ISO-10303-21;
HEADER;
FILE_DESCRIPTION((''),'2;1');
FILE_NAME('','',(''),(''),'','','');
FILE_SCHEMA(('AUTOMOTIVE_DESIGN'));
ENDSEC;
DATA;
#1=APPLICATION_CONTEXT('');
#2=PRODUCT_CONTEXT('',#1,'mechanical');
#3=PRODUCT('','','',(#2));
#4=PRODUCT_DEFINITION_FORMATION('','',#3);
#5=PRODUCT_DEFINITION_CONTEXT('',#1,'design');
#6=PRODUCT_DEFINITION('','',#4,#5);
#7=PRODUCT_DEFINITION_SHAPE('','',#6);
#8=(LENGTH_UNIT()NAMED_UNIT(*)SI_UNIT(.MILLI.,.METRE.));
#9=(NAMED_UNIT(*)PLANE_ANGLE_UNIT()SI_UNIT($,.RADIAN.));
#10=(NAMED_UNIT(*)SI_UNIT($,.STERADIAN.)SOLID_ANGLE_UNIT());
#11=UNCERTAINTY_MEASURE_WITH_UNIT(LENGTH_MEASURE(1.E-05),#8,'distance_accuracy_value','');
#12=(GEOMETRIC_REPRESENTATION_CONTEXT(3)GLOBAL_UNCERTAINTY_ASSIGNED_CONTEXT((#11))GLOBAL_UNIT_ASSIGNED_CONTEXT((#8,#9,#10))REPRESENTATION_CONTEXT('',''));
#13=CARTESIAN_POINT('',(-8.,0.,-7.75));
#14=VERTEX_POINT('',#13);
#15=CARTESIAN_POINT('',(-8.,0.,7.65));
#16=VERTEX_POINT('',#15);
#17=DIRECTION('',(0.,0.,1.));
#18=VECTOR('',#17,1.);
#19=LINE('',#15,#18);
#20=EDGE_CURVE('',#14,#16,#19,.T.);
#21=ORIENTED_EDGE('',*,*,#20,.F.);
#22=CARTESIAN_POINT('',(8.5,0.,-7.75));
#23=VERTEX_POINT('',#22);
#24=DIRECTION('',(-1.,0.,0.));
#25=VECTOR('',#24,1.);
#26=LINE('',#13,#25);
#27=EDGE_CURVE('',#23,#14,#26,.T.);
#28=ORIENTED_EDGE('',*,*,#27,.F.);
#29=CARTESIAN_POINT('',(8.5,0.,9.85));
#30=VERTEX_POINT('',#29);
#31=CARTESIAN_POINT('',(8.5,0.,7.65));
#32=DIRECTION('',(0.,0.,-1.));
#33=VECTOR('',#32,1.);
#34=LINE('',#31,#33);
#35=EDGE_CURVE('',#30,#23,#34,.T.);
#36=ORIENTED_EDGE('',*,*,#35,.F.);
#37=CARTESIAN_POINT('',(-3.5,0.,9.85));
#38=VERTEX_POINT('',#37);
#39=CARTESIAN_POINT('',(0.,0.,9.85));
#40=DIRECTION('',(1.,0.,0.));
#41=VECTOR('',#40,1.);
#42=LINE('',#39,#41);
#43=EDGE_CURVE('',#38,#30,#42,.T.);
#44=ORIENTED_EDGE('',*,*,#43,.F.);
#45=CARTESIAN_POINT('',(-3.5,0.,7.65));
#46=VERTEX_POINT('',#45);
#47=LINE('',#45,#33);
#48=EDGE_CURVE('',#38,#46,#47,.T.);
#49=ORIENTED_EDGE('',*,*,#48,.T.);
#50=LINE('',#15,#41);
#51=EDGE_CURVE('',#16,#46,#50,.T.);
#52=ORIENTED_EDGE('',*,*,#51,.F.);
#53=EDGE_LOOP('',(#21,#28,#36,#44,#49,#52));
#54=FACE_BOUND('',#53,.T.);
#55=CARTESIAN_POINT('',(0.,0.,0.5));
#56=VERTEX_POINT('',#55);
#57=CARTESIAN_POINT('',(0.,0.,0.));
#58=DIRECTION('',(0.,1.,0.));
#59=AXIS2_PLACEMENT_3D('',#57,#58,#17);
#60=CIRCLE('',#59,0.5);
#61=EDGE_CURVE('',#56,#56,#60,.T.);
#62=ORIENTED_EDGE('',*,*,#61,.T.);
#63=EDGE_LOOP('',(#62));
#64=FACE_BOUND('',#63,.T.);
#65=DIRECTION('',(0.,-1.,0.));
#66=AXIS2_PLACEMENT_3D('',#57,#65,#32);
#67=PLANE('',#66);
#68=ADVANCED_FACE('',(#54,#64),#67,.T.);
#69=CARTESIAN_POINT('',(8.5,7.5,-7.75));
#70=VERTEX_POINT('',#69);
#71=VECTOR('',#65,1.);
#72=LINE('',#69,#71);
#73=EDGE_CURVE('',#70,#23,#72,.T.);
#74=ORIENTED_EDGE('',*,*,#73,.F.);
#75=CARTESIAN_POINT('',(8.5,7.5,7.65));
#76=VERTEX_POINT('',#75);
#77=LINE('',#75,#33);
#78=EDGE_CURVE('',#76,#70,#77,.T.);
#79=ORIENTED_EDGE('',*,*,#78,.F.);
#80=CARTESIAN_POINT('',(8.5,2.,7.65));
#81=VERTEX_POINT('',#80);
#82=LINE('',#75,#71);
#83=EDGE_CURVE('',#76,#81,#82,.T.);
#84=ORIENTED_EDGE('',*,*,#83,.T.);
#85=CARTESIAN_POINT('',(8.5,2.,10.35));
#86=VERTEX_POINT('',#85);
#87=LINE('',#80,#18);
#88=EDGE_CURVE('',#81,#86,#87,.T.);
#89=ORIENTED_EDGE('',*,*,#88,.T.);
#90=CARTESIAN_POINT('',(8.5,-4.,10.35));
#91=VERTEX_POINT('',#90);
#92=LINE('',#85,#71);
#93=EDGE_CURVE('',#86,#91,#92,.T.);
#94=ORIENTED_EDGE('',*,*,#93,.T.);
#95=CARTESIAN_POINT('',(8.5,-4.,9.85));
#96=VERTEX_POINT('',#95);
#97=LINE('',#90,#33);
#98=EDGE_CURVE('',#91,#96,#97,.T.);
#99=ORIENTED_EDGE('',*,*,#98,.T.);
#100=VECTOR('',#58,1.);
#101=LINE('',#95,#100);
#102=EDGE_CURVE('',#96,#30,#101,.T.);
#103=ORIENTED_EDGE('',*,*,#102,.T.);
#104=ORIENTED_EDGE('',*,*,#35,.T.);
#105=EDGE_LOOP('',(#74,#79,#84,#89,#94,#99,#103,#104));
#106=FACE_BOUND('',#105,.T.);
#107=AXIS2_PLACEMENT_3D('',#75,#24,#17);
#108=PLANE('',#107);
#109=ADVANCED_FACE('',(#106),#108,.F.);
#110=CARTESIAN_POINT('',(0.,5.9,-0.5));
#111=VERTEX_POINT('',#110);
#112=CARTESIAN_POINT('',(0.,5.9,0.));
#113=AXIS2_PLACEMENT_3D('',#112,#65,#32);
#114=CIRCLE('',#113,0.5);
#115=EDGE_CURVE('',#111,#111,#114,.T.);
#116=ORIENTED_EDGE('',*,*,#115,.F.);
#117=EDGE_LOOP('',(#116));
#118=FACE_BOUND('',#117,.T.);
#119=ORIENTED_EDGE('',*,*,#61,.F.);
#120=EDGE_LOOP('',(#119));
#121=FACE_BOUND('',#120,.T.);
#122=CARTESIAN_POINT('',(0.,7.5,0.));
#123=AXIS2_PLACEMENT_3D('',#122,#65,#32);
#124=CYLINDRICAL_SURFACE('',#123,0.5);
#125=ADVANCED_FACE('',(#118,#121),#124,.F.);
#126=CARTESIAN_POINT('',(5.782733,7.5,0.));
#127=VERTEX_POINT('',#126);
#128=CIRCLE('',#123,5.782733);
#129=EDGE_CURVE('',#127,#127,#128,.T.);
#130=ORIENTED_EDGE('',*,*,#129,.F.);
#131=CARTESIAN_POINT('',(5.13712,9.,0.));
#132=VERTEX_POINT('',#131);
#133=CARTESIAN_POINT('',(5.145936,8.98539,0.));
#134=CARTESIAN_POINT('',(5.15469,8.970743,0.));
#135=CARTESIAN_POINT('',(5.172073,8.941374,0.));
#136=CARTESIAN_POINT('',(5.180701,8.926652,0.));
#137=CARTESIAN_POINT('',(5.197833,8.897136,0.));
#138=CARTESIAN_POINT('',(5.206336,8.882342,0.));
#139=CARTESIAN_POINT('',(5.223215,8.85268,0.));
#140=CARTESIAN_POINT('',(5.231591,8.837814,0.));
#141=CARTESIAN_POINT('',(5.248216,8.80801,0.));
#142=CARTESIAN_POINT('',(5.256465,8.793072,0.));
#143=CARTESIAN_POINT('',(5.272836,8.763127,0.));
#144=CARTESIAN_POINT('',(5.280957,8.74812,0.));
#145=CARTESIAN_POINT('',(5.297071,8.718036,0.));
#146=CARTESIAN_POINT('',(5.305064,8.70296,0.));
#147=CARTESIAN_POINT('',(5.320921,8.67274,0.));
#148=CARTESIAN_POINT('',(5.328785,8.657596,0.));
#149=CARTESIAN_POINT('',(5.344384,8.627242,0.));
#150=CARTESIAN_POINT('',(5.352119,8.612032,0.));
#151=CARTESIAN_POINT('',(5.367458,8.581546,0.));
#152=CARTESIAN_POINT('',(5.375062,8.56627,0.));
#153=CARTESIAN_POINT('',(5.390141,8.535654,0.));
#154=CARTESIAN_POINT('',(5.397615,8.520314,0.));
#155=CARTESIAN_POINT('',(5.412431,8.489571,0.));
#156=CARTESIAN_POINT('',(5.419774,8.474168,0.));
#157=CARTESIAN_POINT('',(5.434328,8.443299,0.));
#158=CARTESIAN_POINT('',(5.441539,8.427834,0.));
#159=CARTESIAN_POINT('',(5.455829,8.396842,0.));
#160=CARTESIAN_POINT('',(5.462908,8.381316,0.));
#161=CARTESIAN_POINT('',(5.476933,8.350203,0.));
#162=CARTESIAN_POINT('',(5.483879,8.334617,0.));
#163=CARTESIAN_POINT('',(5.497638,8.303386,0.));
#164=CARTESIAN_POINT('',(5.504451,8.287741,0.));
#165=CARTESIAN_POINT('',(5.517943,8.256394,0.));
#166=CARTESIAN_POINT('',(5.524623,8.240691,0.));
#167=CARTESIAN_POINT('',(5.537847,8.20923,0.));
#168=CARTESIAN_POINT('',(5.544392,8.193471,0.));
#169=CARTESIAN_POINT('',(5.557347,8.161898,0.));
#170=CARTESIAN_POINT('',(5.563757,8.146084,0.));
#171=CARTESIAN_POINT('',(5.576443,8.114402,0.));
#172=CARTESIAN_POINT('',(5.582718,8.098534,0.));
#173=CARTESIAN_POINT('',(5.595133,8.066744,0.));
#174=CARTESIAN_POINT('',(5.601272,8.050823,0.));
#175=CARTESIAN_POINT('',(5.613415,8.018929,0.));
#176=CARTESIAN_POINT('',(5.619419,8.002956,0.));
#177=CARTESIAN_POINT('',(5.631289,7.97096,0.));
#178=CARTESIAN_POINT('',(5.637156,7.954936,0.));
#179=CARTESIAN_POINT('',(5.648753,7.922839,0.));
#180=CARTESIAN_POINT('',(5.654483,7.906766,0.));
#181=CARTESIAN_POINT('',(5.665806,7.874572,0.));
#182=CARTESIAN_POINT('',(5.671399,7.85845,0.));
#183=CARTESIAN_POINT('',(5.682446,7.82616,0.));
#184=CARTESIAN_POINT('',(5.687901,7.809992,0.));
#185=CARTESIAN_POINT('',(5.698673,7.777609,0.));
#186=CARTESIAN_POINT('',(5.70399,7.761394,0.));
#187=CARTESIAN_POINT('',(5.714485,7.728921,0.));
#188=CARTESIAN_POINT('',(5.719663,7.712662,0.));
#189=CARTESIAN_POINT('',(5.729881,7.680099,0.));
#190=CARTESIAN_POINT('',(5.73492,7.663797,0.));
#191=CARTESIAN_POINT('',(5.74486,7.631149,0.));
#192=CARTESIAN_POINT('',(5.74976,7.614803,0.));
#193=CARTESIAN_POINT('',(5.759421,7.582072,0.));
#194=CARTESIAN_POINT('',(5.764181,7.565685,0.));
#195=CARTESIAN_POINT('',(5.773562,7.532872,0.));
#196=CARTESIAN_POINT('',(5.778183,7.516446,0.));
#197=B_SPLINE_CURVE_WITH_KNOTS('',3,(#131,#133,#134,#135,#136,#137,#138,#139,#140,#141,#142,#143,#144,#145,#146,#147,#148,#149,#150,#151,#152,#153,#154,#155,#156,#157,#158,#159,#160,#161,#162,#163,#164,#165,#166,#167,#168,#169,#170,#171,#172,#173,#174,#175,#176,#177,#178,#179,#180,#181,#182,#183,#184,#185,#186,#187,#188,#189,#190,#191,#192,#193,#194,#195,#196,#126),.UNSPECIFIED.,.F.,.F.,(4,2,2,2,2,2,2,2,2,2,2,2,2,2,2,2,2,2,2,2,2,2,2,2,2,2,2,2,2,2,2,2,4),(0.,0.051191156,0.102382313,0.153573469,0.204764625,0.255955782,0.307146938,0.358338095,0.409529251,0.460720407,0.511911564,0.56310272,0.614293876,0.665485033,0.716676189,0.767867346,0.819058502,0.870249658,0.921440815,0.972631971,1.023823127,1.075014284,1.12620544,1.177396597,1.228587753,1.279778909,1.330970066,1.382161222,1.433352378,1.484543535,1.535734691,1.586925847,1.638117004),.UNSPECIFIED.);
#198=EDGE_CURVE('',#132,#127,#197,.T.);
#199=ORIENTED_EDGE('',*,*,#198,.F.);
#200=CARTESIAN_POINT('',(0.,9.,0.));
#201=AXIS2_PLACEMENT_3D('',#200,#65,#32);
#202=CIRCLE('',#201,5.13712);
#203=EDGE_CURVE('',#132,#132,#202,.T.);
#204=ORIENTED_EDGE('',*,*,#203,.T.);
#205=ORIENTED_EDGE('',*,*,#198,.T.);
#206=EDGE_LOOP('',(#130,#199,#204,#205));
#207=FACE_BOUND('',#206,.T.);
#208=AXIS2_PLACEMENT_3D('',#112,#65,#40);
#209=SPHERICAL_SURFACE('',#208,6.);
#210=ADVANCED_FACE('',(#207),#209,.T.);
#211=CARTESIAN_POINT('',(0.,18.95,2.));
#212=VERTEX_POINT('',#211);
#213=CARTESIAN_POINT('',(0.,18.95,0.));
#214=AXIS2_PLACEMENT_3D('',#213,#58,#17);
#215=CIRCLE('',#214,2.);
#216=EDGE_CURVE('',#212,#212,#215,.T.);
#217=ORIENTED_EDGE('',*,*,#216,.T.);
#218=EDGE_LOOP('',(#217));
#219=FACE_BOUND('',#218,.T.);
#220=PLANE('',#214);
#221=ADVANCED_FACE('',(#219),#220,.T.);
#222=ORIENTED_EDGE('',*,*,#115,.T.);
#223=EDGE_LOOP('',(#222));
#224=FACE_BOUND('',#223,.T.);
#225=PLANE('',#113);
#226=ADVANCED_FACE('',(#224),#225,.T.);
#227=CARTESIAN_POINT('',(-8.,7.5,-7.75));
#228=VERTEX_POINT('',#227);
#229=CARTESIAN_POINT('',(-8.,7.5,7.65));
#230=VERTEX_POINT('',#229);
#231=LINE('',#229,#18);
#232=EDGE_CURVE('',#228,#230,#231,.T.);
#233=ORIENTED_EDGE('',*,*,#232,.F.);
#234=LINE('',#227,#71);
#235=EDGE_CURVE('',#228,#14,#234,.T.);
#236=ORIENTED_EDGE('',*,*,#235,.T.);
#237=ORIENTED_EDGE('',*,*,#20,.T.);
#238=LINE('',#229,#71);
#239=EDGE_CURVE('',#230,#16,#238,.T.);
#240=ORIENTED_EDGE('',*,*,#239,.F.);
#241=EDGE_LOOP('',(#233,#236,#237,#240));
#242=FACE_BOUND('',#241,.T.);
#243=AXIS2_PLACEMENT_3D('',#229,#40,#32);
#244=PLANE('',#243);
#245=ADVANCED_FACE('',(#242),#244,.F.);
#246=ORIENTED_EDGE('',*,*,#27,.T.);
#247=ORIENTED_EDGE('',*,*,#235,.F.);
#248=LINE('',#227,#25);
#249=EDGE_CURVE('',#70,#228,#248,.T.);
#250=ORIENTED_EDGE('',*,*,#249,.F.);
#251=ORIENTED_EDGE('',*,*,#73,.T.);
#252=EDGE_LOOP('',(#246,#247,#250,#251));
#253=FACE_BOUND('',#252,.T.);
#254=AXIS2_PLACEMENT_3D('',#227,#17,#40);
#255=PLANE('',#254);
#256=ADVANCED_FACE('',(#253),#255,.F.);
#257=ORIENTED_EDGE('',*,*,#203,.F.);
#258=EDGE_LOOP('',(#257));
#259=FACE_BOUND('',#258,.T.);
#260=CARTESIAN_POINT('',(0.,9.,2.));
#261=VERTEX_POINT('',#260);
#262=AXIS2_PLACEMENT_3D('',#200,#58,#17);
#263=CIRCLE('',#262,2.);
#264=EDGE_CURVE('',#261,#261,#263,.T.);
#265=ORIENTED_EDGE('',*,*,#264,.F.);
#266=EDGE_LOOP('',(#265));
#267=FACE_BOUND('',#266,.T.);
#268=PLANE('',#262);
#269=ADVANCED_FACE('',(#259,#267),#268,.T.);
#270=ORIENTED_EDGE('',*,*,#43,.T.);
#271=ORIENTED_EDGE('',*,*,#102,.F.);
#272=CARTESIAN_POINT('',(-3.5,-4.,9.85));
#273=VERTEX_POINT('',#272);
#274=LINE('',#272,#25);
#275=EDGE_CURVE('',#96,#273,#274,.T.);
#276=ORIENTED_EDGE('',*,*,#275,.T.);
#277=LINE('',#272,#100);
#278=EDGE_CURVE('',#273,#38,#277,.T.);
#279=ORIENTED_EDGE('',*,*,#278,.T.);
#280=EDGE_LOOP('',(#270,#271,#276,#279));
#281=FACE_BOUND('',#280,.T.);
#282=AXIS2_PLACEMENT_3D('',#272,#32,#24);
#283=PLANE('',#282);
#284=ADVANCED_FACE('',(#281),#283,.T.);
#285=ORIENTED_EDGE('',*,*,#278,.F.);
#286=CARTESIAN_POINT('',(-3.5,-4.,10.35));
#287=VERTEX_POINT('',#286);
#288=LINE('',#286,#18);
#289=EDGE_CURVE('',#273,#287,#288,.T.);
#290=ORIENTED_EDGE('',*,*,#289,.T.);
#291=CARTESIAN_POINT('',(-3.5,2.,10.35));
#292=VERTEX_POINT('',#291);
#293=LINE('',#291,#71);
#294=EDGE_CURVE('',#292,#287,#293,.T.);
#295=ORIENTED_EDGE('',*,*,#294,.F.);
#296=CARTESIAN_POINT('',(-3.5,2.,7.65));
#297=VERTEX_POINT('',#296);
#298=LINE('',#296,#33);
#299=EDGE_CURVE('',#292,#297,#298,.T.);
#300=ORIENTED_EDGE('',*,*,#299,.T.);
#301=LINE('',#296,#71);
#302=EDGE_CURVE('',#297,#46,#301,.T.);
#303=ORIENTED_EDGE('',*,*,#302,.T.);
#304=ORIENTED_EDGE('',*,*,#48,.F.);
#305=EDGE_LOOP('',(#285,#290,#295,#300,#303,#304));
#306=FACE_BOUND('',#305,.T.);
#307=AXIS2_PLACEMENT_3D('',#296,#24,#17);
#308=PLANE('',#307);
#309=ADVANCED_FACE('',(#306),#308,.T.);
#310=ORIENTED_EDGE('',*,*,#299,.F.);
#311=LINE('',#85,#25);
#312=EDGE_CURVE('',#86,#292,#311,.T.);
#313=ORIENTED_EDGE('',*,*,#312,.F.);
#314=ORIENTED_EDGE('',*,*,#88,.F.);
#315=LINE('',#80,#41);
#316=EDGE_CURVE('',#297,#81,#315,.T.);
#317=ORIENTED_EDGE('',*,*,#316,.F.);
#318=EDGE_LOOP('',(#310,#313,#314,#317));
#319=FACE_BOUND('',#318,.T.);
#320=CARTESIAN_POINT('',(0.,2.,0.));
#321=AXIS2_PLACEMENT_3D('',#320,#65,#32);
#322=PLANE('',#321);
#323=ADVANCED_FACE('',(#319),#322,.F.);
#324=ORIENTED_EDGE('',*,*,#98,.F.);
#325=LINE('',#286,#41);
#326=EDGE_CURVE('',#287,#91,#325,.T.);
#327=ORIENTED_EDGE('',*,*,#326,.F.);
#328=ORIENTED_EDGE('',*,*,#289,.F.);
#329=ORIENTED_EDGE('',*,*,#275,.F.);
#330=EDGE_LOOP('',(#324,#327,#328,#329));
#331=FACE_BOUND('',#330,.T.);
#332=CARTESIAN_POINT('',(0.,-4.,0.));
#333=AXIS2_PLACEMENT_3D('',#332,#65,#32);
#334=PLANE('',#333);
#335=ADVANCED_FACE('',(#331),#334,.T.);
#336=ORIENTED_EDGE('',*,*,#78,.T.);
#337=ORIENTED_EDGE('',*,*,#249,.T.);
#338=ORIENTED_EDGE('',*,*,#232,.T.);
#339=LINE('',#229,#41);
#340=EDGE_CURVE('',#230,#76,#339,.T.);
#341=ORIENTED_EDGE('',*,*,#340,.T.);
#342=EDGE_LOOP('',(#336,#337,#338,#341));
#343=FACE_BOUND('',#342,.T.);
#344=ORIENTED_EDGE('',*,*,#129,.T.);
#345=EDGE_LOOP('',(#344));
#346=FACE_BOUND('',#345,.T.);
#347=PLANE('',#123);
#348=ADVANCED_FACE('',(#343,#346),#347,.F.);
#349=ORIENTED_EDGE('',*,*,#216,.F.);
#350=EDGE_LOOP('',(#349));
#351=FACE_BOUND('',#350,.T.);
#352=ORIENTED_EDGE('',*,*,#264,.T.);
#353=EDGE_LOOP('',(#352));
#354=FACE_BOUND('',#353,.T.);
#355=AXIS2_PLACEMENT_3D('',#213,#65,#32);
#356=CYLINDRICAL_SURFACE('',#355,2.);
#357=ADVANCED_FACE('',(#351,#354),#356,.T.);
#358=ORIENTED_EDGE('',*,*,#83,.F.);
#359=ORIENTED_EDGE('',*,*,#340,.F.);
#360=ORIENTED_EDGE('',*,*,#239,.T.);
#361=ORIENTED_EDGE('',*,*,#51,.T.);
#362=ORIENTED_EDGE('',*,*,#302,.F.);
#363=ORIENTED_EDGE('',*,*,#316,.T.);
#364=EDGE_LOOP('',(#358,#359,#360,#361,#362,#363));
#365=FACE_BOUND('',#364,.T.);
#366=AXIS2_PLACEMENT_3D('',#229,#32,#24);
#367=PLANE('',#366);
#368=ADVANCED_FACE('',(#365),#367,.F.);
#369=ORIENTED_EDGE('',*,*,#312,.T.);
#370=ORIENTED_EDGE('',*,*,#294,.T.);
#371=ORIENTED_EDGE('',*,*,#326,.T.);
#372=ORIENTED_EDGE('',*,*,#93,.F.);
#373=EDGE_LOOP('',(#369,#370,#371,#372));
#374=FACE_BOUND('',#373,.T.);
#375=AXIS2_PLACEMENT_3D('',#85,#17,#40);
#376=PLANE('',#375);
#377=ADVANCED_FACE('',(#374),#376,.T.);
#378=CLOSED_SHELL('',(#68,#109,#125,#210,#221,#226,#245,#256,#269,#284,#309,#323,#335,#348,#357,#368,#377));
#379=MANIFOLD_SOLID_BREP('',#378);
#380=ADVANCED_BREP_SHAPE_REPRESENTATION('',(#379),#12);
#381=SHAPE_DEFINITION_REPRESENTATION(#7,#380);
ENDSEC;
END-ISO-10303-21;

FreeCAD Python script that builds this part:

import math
import FreeCAD as App
import Part
import Sketcher
from FreeCAD import Vector

doc = App.newDocument("Part")
body = doc.addObject("PartDesign::Body", "Body")

# Sketch on XZ plane
sketch1 = body.newObject("Sketcher::SketchObject", "Sketch")
sketch1.AttachmentSupport = (doc.getObject("XZ_Plane"), [""])
sketch1.MapMode = "FlatFace"
sketch1.addGeometry(Part.LineSegment(Vector(-8, -7.75, 0), Vector(-8, 7.65, 0)), False)
sketch1.addGeometry(Part.LineSegment(Vector(-8, 7.65, 0), Vector(8.5, 7.65, 0)), False)
sketch1.addGeometry(Part.LineSegment(Vector(8.5, 7.65, 0), Vector(8.5, -7.75, 0)), False)
sketch1.addGeometry(Part.LineSegment(Vector(8.5, -7.75, 0), Vector(-8, -7.75, 0)), False)
sketch1.addGeometry(Part.Circle(Vector(0, 0, 0), Vector(0, 0, 1), 0.5), False)
sketch1.addConstraint(Sketcher.Constraint("Coincident", 0, 2, 1, 1))
sketch1.addConstraint(Sketcher.Constraint("Coincident", 1, 2, 2, 1))
sketch1.addConstraint(Sketcher.Constraint("Coincident", 2, 2, 3, 1))
sketch1.addConstraint(Sketcher.Constraint("Coincident", 3, 2, 0, 1))
sketch1.addConstraint(Sketcher.Constraint("Vertical", 0))
sketch1.addConstraint(Sketcher.Constraint("Horizontal", 1))
sketch1.addConstraint(Sketcher.Constraint("Vertical", 2))
sketch1.addConstraint(Sketcher.Constraint("Horizontal", 3))
sketch1.addConstraint(Sketcher.Constraint("Coincident", 4, 3, -1, 1))
sketch1.addConstraint(Sketcher.Constraint("Diameter", 4, 1.0))
sketch1.addConstraint(Sketcher.Constraint("DistanceX", 1, 1, 1, 2, 16.5))
sketch1.addConstraint(Sketcher.Constraint("DistanceY", 0, 1, 0, 2, 15.4))
sketch1.addConstraint(Sketcher.Constraint("DistanceX", 0, 2, -1, 1, 8.0))
sketch1.addConstraint(Sketcher.Constraint("DistanceY", -1, 1, 0, 2, 7.65))
pad1 = body.newObject("PartDesign::Pad", "Pad")
pad1.Profile = sketch1
pad1.Length = 7.5
pad1.Reversed = True

# Sketch on XZ plane
sketch2 = body.newObject("Sketcher::SketchObject", "Sketch001")
sketch2.AttachmentSupport = (doc.getObject("XZ_Plane"), [""])
sketch2.MapMode = "FlatFace"
sketch2.addGeometry(Part.LineSegment(Vector(-3.5, 10.35, 0), Vector(-3.5, 7.65, 0)), False)
sketch2.addGeometry(Part.LineSegment(Vector(-3.5, 7.65, 0), Vector(8.5, 7.65, 0)), False)
sketch2.addGeometry(Part.LineSegment(Vector(8.5, 7.65, 0), Vector(8.5, 10.35, 0)), False)
sketch2.addGeometry(Part.LineSegment(Vector(8.5, 10.35, 0), Vector(-3.5, 10.35, 0)), False)
sketch2.addConstraint(Sketcher.Constraint("Coincident", 0, 2, 1, 1))
sketch2.addConstraint(Sketcher.Constraint("Coincident", 1, 2, 2, 1))
sketch2.addConstraint(Sketcher.Constraint("Coincident", 2, 2, 3, 1))
sketch2.addConstraint(Sketcher.Constraint("Coincident", 3, 2, 0, 1))
sketch2.addConstraint(Sketcher.Constraint("Vertical", 0))
sketch2.addConstraint(Sketcher.Constraint("Horizontal", 1))
sketch2.addConstraint(Sketcher.Constraint("Vertical", 2))
sketch2.addConstraint(Sketcher.Constraint("Horizontal", 3))
sketch2.addConstraint(Sketcher.Constraint("DistanceX", 1, 1, 1, 2, 12.0))
sketch2.addConstraint(Sketcher.Constraint("DistanceY", 0, 2, 0, 1, 2.7))
sketch2.addConstraint(Sketcher.Constraint("DistanceX", 0, 2, -1, 1, 3.5))
sketch2.addConstraint(Sketcher.Constraint("DistanceY", -1, 1, 0, 2, 7.65))
pad2 = body.newObject("PartDesign::Pad", "Pad001")
pad2.Profile = sketch2
pad2.Length = 2
pad2.Reversed = True

# Sketch on XZ plane
sketch3 = body.newObject("Sketcher::SketchObject", "Sketch002")
sketch3.AttachmentSupport = (doc.getObject("XZ_Plane"), [""])
sketch3.MapMode = "FlatFace"
sketch3.AttachmentOffset = App.Placement(Vector(0, 0, -2), App.Rotation())
sketch3.addGeometry(Part.LineSegment(Vector(-3.5, 9.85, 0), Vector(-3.5, 10.35, 0)), False)
sketch3.addGeometry(Part.LineSegment(Vector(-3.5, 10.35, 0), Vector(8.5, 10.35, 0)), False)
sketch3.addGeometry(Part.LineSegment(Vector(8.5, 10.35, 0), Vector(8.5, 9.85, 0)), False)
sketch3.addGeometry(Part.LineSegment(Vector(8.5, 9.85, 0), Vector(-3.5, 9.85, 0)), False)
sketch3.addConstraint(Sketcher.Constraint("Coincident", 0, 2, 1, 1))
sketch3.addConstraint(Sketcher.Constraint("Coincident", 1, 2, 2, 1))
sketch3.addConstraint(Sketcher.Constraint("Coincident", 2, 2, 3, 1))
sketch3.addConstraint(Sketcher.Constraint("Coincident", 3, 2, 0, 1))
sketch3.addConstraint(Sketcher.Constraint("Vertical", 0))
sketch3.addConstraint(Sketcher.Constraint("Horizontal", 1))
sketch3.addConstraint(Sketcher.Constraint("Vertical", 2))
sketch3.addConstraint(Sketcher.Constraint("Horizontal", 3))
sketch3.addConstraint(Sketcher.Constraint("DistanceX", 1, 1, 1, 2, 12.0))
sketch3.addConstraint(Sketcher.Constraint("DistanceY", 0, 1, 0, 2, 0.5))
sketch3.addConstraint(Sketcher.Constraint("DistanceX", 0, 2, -1, 1, 3.5))
sketch3.addConstraint(Sketcher.Constraint("DistanceY", -1, 1, 0, 2, 10.35))
pad3 = body.newObject("PartDesign::Pad", "Pad002")
pad3.Profile = sketch3
pad3.Length = 6

# Sketch on XZ plane
sketch4 = body.newObject("Sketcher::SketchObject", "Sketch003")
sketch4.AttachmentSupport = (doc.getObject("XZ_Plane"), [""])
sketch4.MapMode = "FlatFace"
sketch4.AttachmentOffset = App.Placement(Vector(0, 0, -7.5), App.Rotation())
sketch4.addGeometry(Part.Circle(Vector(0, 0, 0), Vector(0, 0, 1), 2), False)
sketch4.addConstraint(Sketcher.Constraint("Coincident", 0, 3, -1, 1))
sketch4.addConstraint(Sketcher.Constraint("Diameter", 0, 4.0))
pad4 = body.newObject("PartDesign::Pad", "Pad003")
pad4.Profile = sketch4
pad4.Length = 11.45
pad4.Reversed = True

# Sketch on XY plane
sketch5 = body.newObject("Sketcher::SketchObject", "Sketch004")
sketch5.AttachmentSupport = (doc.getObject("XY_Plane"), [""])
sketch5.MapMode = "FlatFace"
sketch5.addGeometry(Part.LineSegment(Vector(5.13712, 9, 0), Vector(0, 9, 0)), False)
sketch5.addGeometry(Part.LineSegment(Vector(0, 9, 0), Vector(0, 5.9, 0)), False)
sketch5.addGeometry(Part.LineSegment(Vector(0, 5.9, 0), Vector(6, 5.9, 0)), False)
sketch5.addGeometry(Part.ArcOfCircle(Part.Circle(Vector(0, 5.9, 0), Vector(0, 0, 1), 6), math.radians(0), math.radians(31.108923)), False)
sketch5.addConstraint(Sketcher.Constraint("Coincident", 0, 2, 1, 1))
sketch5.addConstraint(Sketcher.Constraint("Coincident", 1, 2, 2, 1))
sketch5.addConstraint(Sketcher.Constraint("Coincident", 2, 2, 3, 1))
sketch5.addConstraint(Sketcher.Constraint("Coincident", 3, 2, 0, 1))
sketch5.addConstraint(Sketcher.Constraint("Horizontal", 0))
sketch5.addConstraint(Sketcher.Constraint("Vertical", 1))
sketch5.addConstraint(Sketcher.Constraint("Horizontal", 2))
sketch5.addConstraint(Sketcher.Constraint("Coincident", 1, 2, 3, 3))
sketch5.addConstraint(Sketcher.Constraint("PointOnObject", 3, 3, -2))
sketch5.addConstraint(Sketcher.Constraint("Radius", 3, 6.0))
sketch5.addConstraint(Sketcher.Constraint("DistanceY", 1, 2, 1, 1, 3.1))
sketch5.addConstraint(Sketcher.Constraint("DistanceY", -1, 1, 0, 2, 9.0))
revolution = body.newObject("PartDesign::Revolution", "Revolution")
revolution.Profile = sketch5
revolution.ReferenceAxis = (sketch5, ["V_Axis"])
revolution.Angle = 360

doc.recompute()
